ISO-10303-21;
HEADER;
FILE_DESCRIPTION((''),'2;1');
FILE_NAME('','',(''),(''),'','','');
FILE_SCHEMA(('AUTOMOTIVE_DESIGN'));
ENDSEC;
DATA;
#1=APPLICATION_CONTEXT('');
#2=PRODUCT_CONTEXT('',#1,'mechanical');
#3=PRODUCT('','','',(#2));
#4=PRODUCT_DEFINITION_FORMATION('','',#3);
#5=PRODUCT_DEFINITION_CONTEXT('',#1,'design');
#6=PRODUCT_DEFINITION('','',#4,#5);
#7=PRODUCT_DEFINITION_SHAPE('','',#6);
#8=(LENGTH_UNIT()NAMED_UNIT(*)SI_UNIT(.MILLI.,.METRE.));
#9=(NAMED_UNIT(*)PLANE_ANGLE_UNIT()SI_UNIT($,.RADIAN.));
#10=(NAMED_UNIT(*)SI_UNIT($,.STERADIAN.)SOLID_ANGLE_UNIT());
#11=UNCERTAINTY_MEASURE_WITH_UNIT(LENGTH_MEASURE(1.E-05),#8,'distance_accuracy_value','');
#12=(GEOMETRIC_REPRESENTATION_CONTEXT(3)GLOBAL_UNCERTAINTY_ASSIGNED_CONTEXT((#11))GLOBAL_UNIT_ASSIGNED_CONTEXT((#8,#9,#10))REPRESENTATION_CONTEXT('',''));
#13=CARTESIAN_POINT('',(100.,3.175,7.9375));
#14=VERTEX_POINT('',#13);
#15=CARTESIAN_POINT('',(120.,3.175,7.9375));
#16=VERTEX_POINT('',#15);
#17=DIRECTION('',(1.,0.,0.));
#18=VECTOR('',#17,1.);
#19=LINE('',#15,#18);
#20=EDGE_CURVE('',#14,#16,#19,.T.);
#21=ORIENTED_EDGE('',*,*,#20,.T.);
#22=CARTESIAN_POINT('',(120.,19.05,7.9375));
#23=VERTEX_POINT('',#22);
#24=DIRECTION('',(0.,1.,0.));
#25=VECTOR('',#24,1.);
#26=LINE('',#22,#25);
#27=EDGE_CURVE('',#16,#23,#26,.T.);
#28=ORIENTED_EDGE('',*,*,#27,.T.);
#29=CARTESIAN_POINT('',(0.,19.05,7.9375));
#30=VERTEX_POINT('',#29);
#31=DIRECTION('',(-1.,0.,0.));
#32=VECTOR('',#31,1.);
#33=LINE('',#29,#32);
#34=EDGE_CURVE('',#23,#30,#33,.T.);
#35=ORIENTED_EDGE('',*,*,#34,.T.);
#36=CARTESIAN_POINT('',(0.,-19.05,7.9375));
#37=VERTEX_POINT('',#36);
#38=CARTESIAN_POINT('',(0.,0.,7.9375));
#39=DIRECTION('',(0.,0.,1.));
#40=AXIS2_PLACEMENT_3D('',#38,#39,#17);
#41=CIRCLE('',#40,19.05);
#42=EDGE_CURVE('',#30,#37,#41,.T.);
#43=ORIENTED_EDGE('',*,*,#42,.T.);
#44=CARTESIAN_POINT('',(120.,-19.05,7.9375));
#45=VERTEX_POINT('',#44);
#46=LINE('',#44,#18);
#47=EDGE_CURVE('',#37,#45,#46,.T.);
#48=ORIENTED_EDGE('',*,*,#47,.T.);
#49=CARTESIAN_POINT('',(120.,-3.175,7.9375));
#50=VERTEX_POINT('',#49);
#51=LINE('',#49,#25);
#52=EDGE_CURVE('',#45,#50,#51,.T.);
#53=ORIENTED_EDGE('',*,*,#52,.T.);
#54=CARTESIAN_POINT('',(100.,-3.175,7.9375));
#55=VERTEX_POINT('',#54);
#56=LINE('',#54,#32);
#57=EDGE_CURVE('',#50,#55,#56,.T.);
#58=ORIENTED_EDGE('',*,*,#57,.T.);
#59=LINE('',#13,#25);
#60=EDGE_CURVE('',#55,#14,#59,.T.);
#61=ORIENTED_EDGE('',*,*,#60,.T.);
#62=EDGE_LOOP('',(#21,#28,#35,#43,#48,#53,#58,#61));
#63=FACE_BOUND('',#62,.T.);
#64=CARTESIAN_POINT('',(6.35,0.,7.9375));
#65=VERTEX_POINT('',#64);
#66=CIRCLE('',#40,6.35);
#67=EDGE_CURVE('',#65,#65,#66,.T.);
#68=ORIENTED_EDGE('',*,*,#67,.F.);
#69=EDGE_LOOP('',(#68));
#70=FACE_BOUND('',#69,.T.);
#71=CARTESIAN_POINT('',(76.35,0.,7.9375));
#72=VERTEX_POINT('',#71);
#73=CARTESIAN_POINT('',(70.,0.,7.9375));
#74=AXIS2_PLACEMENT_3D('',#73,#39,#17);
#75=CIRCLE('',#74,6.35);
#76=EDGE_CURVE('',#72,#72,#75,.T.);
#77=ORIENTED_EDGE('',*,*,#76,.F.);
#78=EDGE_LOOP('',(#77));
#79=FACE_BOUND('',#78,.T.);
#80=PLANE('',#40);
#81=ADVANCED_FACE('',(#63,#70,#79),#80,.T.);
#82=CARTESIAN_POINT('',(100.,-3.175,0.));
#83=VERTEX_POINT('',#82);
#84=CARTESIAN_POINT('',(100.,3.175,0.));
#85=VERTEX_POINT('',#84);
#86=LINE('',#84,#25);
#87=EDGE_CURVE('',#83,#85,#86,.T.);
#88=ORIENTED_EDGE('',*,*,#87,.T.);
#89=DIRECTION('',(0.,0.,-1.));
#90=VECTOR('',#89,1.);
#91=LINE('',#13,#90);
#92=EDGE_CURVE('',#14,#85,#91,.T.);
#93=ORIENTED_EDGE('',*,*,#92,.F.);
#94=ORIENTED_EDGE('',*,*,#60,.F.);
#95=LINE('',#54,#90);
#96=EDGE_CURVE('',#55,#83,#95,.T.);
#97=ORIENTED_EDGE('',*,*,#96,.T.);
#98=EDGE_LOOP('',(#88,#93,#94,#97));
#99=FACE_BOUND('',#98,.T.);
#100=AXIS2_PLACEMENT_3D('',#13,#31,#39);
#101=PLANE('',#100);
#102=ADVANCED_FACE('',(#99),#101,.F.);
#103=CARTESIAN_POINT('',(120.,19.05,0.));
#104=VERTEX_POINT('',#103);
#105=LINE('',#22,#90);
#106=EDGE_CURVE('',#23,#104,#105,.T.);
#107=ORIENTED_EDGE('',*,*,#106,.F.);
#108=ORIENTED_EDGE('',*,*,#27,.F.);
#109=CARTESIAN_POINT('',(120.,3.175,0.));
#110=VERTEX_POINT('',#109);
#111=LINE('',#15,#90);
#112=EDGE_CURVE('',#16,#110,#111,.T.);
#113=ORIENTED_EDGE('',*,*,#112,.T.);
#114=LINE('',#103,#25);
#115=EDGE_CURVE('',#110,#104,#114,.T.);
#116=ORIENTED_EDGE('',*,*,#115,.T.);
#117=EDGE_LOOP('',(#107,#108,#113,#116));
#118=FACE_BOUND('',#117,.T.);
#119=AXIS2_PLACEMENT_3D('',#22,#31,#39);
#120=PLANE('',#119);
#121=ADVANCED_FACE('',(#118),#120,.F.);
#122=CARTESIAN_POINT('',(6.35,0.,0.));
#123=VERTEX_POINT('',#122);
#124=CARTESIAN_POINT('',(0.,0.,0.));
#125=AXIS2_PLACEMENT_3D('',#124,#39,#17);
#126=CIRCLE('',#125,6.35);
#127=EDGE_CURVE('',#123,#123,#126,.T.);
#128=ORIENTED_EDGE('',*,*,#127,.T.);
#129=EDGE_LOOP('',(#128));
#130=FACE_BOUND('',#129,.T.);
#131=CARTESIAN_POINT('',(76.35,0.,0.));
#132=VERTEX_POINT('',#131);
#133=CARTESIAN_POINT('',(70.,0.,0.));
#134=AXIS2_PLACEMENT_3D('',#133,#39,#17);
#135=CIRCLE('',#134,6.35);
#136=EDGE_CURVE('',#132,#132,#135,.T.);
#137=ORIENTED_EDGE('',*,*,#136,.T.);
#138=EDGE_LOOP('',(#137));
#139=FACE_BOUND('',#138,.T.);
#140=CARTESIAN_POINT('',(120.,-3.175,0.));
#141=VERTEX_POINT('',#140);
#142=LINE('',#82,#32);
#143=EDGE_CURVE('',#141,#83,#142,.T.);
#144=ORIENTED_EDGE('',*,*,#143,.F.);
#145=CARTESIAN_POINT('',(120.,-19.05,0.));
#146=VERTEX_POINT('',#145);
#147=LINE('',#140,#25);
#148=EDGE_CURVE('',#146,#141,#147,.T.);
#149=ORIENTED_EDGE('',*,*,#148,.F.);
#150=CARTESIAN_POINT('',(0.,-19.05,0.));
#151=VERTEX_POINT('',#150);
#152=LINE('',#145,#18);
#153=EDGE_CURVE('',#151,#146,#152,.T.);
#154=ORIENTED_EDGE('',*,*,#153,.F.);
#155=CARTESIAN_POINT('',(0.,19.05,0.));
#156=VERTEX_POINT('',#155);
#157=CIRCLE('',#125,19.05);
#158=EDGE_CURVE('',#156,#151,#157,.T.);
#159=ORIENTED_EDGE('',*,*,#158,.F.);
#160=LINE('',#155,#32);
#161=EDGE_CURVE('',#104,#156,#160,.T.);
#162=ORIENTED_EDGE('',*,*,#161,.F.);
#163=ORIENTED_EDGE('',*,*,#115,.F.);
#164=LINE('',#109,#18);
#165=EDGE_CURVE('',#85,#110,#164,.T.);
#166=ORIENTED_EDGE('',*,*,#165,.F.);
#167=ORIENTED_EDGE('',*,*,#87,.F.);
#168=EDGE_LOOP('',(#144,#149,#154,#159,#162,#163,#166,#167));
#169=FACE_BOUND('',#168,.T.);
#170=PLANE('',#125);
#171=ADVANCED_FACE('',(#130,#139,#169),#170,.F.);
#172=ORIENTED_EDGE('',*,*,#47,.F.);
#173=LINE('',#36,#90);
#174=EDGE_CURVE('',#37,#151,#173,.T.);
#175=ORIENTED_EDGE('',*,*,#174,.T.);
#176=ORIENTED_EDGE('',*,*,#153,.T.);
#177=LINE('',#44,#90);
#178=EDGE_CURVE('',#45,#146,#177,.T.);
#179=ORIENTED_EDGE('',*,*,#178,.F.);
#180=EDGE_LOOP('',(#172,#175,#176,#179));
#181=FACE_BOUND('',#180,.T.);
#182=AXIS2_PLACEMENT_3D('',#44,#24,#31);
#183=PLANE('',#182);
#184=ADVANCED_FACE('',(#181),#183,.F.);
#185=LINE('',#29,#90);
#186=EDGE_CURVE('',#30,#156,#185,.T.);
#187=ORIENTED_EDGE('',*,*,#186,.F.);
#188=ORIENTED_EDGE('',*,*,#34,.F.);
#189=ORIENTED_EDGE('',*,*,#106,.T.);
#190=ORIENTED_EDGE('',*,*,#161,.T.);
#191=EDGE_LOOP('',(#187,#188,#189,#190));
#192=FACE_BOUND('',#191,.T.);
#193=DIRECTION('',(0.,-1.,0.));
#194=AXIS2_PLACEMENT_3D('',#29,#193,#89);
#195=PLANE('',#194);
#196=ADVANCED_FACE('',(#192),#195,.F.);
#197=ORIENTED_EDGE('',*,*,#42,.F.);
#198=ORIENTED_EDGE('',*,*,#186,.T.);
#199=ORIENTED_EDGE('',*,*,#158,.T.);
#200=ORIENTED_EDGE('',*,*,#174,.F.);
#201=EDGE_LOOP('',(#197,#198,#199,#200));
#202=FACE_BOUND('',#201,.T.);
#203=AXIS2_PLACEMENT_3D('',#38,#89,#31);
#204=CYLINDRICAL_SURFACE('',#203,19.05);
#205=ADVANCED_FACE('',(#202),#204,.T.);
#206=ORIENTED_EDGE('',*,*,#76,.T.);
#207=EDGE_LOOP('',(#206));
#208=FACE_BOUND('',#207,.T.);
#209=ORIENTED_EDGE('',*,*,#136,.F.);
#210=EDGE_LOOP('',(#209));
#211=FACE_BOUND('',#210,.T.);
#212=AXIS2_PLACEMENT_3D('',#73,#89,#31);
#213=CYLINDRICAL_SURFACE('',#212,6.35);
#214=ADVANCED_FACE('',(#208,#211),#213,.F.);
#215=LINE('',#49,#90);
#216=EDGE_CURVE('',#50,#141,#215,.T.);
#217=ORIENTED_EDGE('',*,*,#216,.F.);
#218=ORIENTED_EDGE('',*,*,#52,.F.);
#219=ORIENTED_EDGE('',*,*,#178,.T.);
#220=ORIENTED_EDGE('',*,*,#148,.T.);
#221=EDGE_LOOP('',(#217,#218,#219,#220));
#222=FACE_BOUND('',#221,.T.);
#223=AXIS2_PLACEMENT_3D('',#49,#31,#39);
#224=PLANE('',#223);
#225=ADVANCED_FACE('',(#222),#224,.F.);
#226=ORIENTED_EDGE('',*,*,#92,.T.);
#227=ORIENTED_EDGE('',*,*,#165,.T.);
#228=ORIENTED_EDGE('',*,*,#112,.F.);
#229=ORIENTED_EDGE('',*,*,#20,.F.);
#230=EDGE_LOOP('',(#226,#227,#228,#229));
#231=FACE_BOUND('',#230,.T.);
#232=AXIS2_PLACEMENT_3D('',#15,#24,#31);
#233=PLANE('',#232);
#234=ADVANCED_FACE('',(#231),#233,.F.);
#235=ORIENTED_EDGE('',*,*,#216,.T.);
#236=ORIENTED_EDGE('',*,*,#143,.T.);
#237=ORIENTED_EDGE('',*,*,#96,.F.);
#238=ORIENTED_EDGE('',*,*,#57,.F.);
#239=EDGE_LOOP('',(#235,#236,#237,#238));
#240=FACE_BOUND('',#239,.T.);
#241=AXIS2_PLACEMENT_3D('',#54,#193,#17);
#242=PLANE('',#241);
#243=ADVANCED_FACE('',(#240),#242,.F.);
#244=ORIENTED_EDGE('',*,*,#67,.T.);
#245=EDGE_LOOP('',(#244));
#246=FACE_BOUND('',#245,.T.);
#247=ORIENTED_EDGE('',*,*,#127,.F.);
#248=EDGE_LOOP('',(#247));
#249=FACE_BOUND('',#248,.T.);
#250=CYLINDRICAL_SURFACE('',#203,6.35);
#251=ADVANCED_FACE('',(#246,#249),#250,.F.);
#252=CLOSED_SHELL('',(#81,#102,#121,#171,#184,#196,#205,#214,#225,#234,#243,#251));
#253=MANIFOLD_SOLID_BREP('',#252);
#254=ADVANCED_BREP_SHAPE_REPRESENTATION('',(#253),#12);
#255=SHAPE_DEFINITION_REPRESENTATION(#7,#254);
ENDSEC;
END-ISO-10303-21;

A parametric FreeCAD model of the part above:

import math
import FreeCAD as App
import Part
import Sketcher

V = App.Vector
Q = App.Units.Quantity

doc = App.newDocument("Part")
body = doc.addObject("PartDesign::Body", "Body")

# Sketch on XY plane
sketch1 = doc.addObject("Sketcher::SketchObject", "Sketch")
body.addObject(sketch1)
sketch1.AttachmentSupport = (doc.XY_Plane, [""])
sketch1.MapMode = "FlatFace"
sketch1.addGeometry(Part.LineSegment(V(120, 19, 0), V(0, 19, 0)), False)
sketch1.addGeometry(Part.ArcOfCircle(Part.Circle(V(0, 0, 0), V(0, 0, 1), 19), math.radians(90), math.radians(270)), False)
sketch1.addGeometry(Part.LineSegment(V(0, -19, 0), V(120, -19, 0)), False)
sketch1.addGeometry(Part.LineSegment(V(120, -19, 0), V(120, -3, 0)), False)
sketch1.addGeometry(Part.LineSegment(V(120, -3, 0), V(100, -3, 0)), False)
sketch1.addGeometry(Part.LineSegment(V(100, -3, 0), V(100, 3, 0)), False)
sketch1.addGeometry(Part.LineSegment(V(100, 3, 0), V(120, 3, 0)), False)
sketch1.addGeometry(Part.LineSegment(V(120, 3, 0), V(120, 19, 0)), False)
sketch1.addGeometry(Part.Circle(V(70, 0, 0), V(0, 0, 1), 6), False)
sketch1.addGeometry(Part.Circle(V(0, 0, 0), V(0, 0, 1), 6), False)
sketch1.addConstraint(Sketcher.Constraint("Tangent", 0, 2, 1, 1))
sketch1.addConstraint(Sketcher.Constraint("Tangent", 1, 2, 2, 1))
sketch1.addConstraint(Sketcher.Constraint("Coincident", 2, 2, 3, 1))
sketch1.addConstraint(Sketcher.Constraint("Coincident", 3, 2, 4, 1))
sketch1.addConstraint(Sketcher.Constraint("Coincident", 4, 2, 5, 1))
sketch1.addConstraint(Sketcher.Constraint("Coincident", 5, 2, 6, 1))
sketch1.addConstraint(Sketcher.Constraint("Coincident", 6, 2, 7, 1))
sketch1.addConstraint(Sketcher.Constraint("Coincident", 7, 2, 0, 1))
sketch1.addConstraint(Sketcher.Constraint("Horizontal", 0))
sketch1.addConstraint(Sketcher.Constraint("Horizontal", 2))
sketch1.addConstraint(Sketcher.Constraint("Vertical", 3))
sketch1.addConstraint(Sketcher.Constraint("Horizontal", 4))
sketch1.addConstraint(Sketcher.Constraint("Vertical", 5))
sketch1.addConstraint(Sketcher.Constraint("Horizontal", 6))
sketch1.addConstraint(Sketcher.Constraint("Vertical", 7))
sketch1.addConstraint(Sketcher.Constraint("Coincident", 1, 3, -1, 1))
sketch1.addConstraint(Sketcher.Constraint("Coincident", 9, 3, -1, 1))
sketch1.addConstraint(Sketcher.Constraint("Equal", 8, 9))
sketch1.addConstraint(Sketcher.Constraint("Symmetric", 3, 2, 6, 2, -1))
sketch1.addConstraint(Sketcher.Constraint("PointOnObject", 8, 3, -1))
sketch1.addConstraint(Sketcher.Constraint("Diameter", 8, Q("0.5 in")))
sketch1.addConstraint(Sketcher.Constraint("Radius", 1, Q("0.75 in")))
sketch1.addConstraint(Sketcher.Constraint("DistanceY", 5, 1, 5, 2, Q("0.25 in")))
sketch1.addConstraint(Sketcher.Constraint("DistanceX", 0, 2, 0, 1, 120.0))
sketch1.addConstraint(Sketcher.Constraint("DistanceX", 4, 2, 4, 1, 20.0))
sketch1.addConstraint(Sketcher.Constraint("DistanceX", -1, 1, 8, 3, 70.0))
pad1 = doc.addObject("PartDesign::Pad", "Pad")
body.addObject(pad1)
pad1.Profile = sketch1
pad1.Length = Q("0.3125 in")

doc.recompute()
